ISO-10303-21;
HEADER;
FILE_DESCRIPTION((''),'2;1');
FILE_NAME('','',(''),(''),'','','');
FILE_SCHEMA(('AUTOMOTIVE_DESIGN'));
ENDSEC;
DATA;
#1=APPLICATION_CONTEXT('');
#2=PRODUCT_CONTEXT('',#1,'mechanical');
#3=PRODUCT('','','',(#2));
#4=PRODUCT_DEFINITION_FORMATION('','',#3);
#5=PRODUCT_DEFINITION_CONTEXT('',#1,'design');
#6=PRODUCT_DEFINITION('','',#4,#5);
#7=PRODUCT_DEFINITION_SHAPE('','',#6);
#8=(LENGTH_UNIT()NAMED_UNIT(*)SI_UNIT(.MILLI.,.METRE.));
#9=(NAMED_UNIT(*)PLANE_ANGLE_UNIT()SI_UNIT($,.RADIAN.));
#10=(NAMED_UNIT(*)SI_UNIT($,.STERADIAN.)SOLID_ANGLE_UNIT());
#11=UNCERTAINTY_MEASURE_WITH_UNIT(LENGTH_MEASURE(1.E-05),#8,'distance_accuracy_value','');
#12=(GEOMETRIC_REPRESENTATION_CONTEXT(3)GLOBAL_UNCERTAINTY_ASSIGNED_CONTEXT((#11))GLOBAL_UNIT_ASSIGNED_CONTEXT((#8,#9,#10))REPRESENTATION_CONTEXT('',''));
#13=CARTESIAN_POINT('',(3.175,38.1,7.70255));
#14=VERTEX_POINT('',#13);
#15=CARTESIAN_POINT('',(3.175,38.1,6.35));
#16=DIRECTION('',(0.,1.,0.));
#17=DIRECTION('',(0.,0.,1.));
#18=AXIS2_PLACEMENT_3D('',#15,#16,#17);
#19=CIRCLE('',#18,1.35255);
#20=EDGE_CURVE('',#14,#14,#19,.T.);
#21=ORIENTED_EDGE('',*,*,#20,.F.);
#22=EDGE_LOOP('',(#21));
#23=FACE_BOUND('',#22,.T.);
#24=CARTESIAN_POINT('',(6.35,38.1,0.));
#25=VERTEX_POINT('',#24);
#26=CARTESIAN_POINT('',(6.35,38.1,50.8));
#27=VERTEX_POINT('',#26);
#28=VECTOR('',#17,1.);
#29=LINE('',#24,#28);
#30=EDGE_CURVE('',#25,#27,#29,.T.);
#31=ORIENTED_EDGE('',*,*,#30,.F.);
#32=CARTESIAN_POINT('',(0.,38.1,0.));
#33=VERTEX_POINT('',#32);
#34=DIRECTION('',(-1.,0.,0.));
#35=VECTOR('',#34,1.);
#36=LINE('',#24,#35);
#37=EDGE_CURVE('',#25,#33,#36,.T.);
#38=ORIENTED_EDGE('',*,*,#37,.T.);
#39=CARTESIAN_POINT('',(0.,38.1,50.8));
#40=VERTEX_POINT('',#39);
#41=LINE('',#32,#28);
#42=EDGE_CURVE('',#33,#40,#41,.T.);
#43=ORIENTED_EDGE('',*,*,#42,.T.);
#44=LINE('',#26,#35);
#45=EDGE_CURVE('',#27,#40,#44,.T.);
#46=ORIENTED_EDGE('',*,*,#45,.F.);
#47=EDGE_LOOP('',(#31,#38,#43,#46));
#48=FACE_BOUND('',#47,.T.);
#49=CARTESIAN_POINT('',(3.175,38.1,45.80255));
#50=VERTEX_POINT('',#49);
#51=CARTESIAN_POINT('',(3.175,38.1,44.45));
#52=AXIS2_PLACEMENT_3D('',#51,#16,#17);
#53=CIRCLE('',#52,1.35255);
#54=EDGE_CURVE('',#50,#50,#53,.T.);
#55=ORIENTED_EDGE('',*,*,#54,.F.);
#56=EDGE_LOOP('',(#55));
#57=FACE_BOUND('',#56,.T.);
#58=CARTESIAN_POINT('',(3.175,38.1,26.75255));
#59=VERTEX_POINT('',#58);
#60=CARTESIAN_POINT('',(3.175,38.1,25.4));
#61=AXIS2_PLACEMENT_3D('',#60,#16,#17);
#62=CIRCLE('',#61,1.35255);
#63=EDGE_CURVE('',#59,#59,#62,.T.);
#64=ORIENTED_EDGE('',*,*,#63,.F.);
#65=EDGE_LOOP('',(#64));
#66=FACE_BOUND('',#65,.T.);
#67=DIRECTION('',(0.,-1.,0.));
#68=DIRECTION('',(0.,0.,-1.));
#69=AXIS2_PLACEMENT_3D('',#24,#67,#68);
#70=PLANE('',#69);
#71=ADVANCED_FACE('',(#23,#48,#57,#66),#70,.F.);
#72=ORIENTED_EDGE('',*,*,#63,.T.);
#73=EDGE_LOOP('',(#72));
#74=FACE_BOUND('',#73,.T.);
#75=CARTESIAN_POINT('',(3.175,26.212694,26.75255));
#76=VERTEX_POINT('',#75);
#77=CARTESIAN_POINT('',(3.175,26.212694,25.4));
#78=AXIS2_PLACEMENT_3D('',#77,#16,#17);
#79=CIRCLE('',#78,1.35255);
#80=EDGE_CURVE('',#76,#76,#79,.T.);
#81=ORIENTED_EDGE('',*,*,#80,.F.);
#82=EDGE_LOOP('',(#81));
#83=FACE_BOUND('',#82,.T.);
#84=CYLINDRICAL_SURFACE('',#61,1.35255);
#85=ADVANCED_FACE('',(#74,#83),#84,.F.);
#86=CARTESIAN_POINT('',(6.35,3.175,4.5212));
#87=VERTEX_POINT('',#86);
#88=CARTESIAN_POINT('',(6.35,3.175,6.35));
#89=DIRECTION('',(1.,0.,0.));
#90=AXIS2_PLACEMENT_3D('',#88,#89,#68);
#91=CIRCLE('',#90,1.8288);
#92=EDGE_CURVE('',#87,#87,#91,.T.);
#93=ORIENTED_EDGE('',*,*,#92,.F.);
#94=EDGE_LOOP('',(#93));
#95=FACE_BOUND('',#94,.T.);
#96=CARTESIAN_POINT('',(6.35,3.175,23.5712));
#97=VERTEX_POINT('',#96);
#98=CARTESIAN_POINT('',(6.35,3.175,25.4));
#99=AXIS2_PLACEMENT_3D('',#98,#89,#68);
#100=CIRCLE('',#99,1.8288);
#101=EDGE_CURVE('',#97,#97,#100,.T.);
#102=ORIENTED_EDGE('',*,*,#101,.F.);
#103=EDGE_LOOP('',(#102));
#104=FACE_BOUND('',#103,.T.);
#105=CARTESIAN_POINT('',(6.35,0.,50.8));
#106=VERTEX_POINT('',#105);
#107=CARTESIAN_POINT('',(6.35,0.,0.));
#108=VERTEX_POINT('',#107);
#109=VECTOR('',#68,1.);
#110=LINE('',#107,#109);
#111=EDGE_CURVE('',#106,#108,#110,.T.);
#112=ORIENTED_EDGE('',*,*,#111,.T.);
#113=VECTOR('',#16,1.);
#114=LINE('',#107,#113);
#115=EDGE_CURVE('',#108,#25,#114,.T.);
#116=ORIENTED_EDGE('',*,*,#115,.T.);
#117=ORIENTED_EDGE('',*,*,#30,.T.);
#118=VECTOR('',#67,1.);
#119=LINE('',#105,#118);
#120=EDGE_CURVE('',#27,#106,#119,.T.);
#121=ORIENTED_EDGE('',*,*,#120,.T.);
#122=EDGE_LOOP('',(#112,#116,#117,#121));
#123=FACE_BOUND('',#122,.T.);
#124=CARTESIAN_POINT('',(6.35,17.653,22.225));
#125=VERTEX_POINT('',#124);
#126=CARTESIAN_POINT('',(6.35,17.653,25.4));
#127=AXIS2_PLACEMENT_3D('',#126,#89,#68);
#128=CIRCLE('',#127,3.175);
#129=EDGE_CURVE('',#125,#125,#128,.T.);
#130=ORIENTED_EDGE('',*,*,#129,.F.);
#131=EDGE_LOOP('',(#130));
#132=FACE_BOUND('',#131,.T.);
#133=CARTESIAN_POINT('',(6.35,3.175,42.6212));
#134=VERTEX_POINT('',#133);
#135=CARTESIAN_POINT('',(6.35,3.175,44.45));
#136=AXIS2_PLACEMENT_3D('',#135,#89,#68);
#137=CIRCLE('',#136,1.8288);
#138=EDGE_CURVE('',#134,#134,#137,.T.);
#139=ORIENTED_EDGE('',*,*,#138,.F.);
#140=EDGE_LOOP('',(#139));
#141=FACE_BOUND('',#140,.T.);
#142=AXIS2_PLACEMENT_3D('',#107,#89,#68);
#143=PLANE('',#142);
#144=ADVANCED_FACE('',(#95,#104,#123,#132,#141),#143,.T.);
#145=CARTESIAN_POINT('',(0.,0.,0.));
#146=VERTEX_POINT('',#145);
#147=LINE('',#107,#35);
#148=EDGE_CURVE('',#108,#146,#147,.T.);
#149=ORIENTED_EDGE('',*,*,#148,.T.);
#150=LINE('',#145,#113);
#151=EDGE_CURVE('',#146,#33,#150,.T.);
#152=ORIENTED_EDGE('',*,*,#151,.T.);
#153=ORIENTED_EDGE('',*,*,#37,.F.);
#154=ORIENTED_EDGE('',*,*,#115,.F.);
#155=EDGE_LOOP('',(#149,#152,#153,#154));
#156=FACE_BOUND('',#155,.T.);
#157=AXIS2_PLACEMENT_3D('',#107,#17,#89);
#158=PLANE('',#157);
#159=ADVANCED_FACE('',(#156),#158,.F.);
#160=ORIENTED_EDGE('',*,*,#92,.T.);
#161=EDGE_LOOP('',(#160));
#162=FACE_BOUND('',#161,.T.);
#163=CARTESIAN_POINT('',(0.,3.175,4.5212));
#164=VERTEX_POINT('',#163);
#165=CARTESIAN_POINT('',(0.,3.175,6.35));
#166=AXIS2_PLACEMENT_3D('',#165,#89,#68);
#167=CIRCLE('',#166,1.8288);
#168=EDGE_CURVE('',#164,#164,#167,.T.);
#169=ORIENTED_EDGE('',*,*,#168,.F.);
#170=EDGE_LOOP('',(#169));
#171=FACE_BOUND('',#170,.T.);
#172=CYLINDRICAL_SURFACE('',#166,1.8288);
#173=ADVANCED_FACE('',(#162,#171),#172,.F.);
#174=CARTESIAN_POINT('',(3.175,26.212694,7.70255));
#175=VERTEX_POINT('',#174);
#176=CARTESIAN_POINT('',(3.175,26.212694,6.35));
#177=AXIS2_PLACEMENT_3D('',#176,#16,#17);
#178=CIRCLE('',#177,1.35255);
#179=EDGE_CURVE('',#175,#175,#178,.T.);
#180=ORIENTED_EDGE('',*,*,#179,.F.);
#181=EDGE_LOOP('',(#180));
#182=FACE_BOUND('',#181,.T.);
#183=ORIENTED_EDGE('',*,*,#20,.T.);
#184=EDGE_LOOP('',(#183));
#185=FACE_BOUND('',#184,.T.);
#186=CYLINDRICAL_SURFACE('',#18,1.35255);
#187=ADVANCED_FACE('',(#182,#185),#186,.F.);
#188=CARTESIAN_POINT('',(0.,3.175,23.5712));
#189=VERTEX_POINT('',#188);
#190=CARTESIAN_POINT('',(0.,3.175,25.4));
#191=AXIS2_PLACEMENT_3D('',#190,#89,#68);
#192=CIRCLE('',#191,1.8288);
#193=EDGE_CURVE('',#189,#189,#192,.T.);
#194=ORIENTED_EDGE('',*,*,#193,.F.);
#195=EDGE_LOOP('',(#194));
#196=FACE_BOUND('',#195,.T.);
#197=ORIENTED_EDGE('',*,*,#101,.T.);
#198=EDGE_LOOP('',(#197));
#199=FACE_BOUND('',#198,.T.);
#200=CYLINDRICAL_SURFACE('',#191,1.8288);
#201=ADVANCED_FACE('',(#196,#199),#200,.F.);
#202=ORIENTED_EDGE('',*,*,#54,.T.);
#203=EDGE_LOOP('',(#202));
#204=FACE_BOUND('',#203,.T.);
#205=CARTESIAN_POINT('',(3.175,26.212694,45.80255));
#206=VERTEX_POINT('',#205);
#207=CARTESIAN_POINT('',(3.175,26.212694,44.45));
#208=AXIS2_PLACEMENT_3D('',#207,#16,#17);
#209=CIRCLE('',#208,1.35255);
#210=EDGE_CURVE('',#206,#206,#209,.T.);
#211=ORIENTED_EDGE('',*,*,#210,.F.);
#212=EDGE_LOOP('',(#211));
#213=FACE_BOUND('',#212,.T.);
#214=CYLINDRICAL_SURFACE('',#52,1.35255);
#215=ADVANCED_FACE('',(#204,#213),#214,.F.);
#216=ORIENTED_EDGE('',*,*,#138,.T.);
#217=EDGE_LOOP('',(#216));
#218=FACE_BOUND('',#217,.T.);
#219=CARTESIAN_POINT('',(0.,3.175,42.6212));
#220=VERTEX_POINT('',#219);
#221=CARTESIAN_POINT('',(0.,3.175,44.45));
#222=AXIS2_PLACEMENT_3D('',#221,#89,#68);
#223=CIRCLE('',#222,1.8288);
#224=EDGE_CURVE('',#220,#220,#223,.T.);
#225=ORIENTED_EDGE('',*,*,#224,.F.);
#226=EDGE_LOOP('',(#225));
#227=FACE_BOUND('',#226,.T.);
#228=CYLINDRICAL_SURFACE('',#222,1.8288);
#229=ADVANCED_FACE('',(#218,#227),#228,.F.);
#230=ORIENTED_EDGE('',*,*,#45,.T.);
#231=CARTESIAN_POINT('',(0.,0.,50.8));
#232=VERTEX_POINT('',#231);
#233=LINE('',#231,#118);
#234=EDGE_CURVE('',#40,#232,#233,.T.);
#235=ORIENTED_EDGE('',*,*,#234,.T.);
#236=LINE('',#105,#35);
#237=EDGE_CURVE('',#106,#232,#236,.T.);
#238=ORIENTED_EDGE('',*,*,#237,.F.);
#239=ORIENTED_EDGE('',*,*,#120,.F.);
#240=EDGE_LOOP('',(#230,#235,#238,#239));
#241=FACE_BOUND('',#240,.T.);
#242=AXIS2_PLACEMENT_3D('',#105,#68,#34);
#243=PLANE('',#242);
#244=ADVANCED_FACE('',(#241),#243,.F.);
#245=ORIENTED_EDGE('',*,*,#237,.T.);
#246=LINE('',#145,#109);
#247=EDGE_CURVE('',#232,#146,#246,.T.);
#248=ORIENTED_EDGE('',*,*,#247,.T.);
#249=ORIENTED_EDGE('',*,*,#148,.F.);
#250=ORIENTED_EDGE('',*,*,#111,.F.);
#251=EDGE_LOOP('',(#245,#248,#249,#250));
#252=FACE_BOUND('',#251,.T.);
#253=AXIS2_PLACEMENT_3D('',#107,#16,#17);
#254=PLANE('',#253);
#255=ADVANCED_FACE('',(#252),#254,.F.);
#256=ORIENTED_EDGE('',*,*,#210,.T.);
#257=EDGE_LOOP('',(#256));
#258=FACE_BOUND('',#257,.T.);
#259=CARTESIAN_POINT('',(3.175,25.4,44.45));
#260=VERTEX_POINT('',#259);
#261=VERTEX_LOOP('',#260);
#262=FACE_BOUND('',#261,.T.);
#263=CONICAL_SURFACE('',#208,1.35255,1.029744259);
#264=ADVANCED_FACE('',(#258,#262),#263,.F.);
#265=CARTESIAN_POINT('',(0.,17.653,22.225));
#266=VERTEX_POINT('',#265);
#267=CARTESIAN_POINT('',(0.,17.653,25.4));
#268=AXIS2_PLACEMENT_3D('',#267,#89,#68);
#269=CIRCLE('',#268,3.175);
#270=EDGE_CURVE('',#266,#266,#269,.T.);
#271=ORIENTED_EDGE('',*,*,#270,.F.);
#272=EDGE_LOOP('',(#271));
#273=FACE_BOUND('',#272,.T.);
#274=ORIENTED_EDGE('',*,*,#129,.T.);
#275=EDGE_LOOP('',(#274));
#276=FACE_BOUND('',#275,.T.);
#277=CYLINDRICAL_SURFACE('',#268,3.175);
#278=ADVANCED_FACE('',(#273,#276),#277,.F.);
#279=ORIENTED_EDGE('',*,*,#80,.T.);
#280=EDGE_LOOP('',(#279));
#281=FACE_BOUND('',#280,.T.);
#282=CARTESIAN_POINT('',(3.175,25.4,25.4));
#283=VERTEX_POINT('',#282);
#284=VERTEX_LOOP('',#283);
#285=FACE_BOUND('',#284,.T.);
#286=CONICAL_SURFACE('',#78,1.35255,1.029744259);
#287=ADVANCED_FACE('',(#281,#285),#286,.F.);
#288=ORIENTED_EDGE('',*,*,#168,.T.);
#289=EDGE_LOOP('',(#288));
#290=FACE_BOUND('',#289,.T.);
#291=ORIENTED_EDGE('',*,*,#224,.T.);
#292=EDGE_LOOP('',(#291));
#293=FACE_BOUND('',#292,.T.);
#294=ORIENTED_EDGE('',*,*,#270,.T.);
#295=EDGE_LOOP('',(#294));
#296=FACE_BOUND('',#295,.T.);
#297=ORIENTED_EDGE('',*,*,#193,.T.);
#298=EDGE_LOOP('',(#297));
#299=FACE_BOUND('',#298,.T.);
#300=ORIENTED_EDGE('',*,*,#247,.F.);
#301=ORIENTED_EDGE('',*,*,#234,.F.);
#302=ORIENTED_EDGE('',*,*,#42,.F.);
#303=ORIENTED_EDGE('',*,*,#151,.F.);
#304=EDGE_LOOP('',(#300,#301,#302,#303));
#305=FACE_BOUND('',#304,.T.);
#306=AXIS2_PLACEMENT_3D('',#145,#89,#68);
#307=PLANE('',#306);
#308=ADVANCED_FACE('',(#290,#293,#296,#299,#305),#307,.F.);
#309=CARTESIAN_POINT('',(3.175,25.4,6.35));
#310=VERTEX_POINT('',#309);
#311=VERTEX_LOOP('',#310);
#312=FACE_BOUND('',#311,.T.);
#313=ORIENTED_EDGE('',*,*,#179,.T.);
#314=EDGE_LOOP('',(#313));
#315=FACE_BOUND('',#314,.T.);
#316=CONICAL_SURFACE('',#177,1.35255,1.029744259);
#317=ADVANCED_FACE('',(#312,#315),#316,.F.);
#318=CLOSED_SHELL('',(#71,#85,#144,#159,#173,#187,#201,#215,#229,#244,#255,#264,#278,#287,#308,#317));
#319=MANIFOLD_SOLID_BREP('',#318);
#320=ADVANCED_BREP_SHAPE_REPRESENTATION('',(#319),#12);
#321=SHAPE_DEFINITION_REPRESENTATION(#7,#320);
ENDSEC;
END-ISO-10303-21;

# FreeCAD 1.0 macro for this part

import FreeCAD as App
import Part
import Sketcher

V = App.Vector
Q = App.Units.Quantity


def add_polygon(sketch, points):
    """Adds a closed chain of lines whose ends are joined by coincident constraints."""
    first, n = sketch.GeometryCount, len(points)
    for a, b in zip(points, points[1:] + points[:1]):
        sketch.addGeometry(Part.LineSegment(App.Vector(*a, 0), App.Vector(*b, 0)), False)
    for i in range(n):
        sketch.addConstraint(Sketcher.Constraint("Coincident", first + i, 2, first + (i + 1) % n, 1))

doc = App.newDocument("Part")
params = doc.addObject("Spreadsheet::Sheet", "Params")
for row, (alias, value) in enumerate([
    ("sketch1_height", "2 in"),
    ("sketch1_width", "1.5 in"),
    ("pad1_length", "0.25 in"),
    ("sketch2_diameter", "0.144 in"),
    ("pocket1_length", "0.25 in"),
    ("hole_diameter", "0.1065 in"),
    ("hole_depth", "11.887306 mm"),
    ("sketch4_diameter", "0.25 in"),
    ("pocket2_length", "0.25 in"),
], start=1):
    params.set(f"A{row}", alias)
    params.set(f"B{row}", "=" + value)
    params.setAlias(f"B{row}", alias)

body = doc.addObject("PartDesign::Body", "Body")

# Sketch on YZ plane
sketch1 = doc.addObject("Sketcher::SketchObject", "Sketch")
body.addObject(sketch1)
sketch1.AttachmentSupport = (doc.YZ_Plane, [""])
sketch1.MapMode = "FlatFace"
add_polygon(sketch1, [(38, 51), (0, 51), (0, 0), (38, 0)])  # lines 0-3
sketch1.addConstraint(Sketcher.Constraint("Horizontal", 0))
sketch1.addConstraint(Sketcher.Constraint("Vertical", 1))
sketch1.addConstraint(Sketcher.Constraint("Horizontal", 2))
sketch1.addConstraint(Sketcher.Constraint("Vertical", 3))
sketch1.addConstraint(Sketcher.Constraint("Coincident", 1, 2, -1, 1))
sketch1.addConstraint(Sketcher.Constraint("DistanceY", 1, 2, 1, 1, Q("2 in")))
sketch1.addConstraint(Sketcher.Constraint("DistanceX", 0, 2, 0, 1, Q("1.5 in")))
sketch1.setExpression("Constraints[9]", "Params.sketch1_height")
sketch1.setExpression("Constraints[10]", "Params.sketch1_width")
pad1 = doc.addObject("PartDesign::Pad", "Pad")
body.addObject(pad1)
pad1.Profile = sketch1
pad1.setExpression("Length", "Params.pad1_length")

# Sketch on YZ plane
sketch2 = doc.addObject("Sketcher::SketchObject", "Sketch001")
body.addObject(sketch2)
sketch2.AttachmentSupport = (doc.YZ_Plane, [""])
sketch2.MapMode = "FlatFace"
sketch2.AttachmentOffset = App.Placement(V(0, 0, 0.25 * 25.4), App.Rotation())
sketch2.addGeometry(Part.Circle(V(3.2, 44.5, 0), V(0, 0, 1), 1.8), False)
sketch2.addGeometry(Part.Circle(V(3.2, 25.4, 0), V(0, 0, 1), 1.8), False)
sketch2.addGeometry(Part.Circle(V(3.2, 6.3, 0), V(0, 0, 1), 1.8), False)
sketch2.addConstraint(Sketcher.Constraint("Equal", 0, 1))
sketch2.addConstraint(Sketcher.Constraint("Equal", 1, 2))
sketch2.addConstraint(Sketcher.Constraint("Vertical", 0, 3, 1, 3))
sketch2.addConstraint(Sketcher.Constraint("Vertical", 1, 3, 2, 3))
sketch2.addConstraint(Sketcher.Constraint("Diameter", 0, Q("0.144 in")))
sketch2.addConstraint(Sketcher.Constraint("DistanceY", -1, 1, 1, 3, Q("1 in")))
sketch2.addConstraint(Sketcher.Constraint("DistanceY", 2, 3, 0, 3, Q("1.5 in")))
sketch2.addConstraint(Sketcher.Constraint("DistanceY", -1, 1, 0, 3, Q("1.75 in")))
sketch2.addConstraint(Sketcher.Constraint("DistanceX", -1, 1, 0, 3, Q("0.125 in")))
sketch2.setExpression("Constraints[4]", "Params.sketch2_diameter")
pocket1 = doc.addObject("PartDesign::Pocket", "Pocket")
body.addObject(pocket1)
pocket1.Profile = sketch2
pocket1.setExpression("Length", "Params.pocket1_length")

# Sketch on XZ plane
sketch3 = doc.addObject("Sketcher::SketchObject", "Sketch002")
body.addObject(sketch3)
sketch3.AttachmentSupport = (doc.XZ_Plane, [""])
sketch3.MapMode = "FlatFace"
sketch3.AttachmentOffset = App.Placement(V(0, 0, -1.5 * 25.4), App.Rotation())
sketch3.addGeometry(Part.Circle(V(3.2, 6.3, 0), V(0, 0, 1), 1.4), False)
sketch3.addGeometry(Part.Circle(V(3.2, 25.4, 0), V(0, 0, 1), 1.4), False)
sketch3.addGeometry(Part.Circle(V(3.2, 44.5, 0), V(0, 0, 1), 1.4), False)
sketch3.addConstraint(Sketcher.Constraint("Equal", 0, 1))
sketch3.addConstraint(Sketcher.Constraint("Equal", 1, 2))
sketch3.addConstraint(Sketcher.Constraint("Vertical", 0, 3, 1, 3))
sketch3.addConstraint(Sketcher.Constraint("Vertical", 1, 3, 2, 3))
sketch3.addConstraint(Sketcher.Constraint("DistanceY", -1, 1, 1, 3, Q("1 in")))
sketch3.addConstraint(Sketcher.Constraint("Diameter", 0, Q("0.1065 in")))
sketch3.addConstraint(Sketcher.Constraint("DistanceY", 0, 3, 2, 3, Q("1.5 in")))
sketch3.addConstraint(Sketcher.Constraint("DistanceY", -1, 1, 0, 3, Q("0.25 in")))
sketch3.addConstraint(Sketcher.Constraint("DistanceX", -1, 1, 0, 3, Q("0.125 in")))
doc.recompute()
hole = doc.addObject("PartDesign::Hole", "Hole")
body.addObject(hole)
hole.Profile = sketch3
hole.ThreadType = "None"
hole.setExpression("Diameter", "Params.hole_diameter")
hole.DepthType = "Dimension"
hole.setExpression("Depth", "Params.hole_depth")
hole.DrillPoint = "Angled"
hole.DrillPointAngle = 118
hole.Reversed = True

# Sketch on YZ plane
sketch4 = doc.addObject("Sketcher::SketchObject", "Sketch003")
body.addObject(sketch4)
sketch4.AttachmentSupport = (doc.YZ_Plane, [""])
sketch4.MapMode = "FlatFace"
sketch4.AttachmentOffset = App.Placement(V(0, 0, 0.25 * 25.4), App.Rotation())
sketch4.addGeometry(Part.Circle(V(17.7, 25.4, 0), V(0, 0, 1), 3.2), False)
sketch4.addConstraint(Sketcher.Constraint("Diameter", 0, Q("0.25 in")))
sketch4.addConstraint(Sketcher.Constraint("DistanceY", -1, 1, 0, 3, Q("1 in")))
sketch4.addConstraint(Sketcher.Constraint("DistanceX", -1, 1, 0, 3, Q("0.695 in")))
sketch4.setExpression("Constraints[0]", "Params.sketch4_diameter")
pocket2 = doc.addObject("PartDesign::Pocket", "Pocket001")
body.addObject(pocket2)
pocket2.Profile = sketch4
pocket2.setExpression("Length", "Params.pocket2_length")

doc.recompute()
